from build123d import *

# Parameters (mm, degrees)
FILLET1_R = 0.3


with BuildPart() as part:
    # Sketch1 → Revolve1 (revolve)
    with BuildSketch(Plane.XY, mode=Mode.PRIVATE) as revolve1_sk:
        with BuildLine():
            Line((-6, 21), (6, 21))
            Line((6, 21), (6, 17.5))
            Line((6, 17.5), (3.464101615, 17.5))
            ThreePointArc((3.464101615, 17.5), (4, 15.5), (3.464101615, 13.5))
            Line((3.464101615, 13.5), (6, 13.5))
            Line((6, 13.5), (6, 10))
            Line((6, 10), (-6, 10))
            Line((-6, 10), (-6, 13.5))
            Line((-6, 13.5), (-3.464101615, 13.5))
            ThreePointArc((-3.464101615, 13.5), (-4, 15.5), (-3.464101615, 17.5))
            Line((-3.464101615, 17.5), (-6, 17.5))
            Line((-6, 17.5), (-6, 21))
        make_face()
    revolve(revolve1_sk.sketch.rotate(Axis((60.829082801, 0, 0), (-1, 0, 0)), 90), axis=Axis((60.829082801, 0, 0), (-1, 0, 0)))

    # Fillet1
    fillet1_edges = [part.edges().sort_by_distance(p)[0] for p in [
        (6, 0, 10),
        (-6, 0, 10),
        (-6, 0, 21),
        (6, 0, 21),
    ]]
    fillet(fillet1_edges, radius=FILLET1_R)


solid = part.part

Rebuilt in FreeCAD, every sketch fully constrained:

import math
import FreeCAD as App
import Part
import Sketcher
from FreeCAD import Vector


def edges_at(feature, points):
    """Names of the edges that pass closest to the given points."""
    edges = feature.Shape.Edges
    near = lambda p: min(range(len(edges)), key=lambda i: edges[i].distToShape(Part.Vertex(*p))[0])
    return sorted({f"Edge{near(p) + 1}" for p in points})

doc = App.newDocument("Part")
body = doc.addObject("PartDesign::Body", "Body")

# Sketch on XY plane
sketch1 = doc.addObject("Sketcher::SketchObject", "Sketch")
body.addObject(sketch1)
sketch1.AttachmentSupport = (doc.XY_Plane, [""])
sketch1.MapMode = "FlatFace"
sketch1.addGeometry([
    Part.LineSegment(Vector(6, 21, 0), Vector(-6, 21, 0)),  # 0
    Part.LineSegment(Vector(-6, 21, 0), Vector(-6, 17.5, 0)),  # 1
    Part.LineSegment(Vector(-6, 17.5, 0), Vector(-3.464102, 17.5, 0)),  # 2
    Part.ArcOfCircle(Part.Circle(Vector(0, 15.5, 0), Vector(0, 0, 1), 4), math.radians(150), math.radians(210)),  # 3
    Part.LineSegment(Vector(-3.464102, 13.5, 0), Vector(-6, 13.5, 0)),  # 4
    Part.LineSegment(Vector(-6, 13.5, 0), Vector(-6, 10, 0)),  # 5
    Part.LineSegment(Vector(-6, 10, 0), Vector(6, 10, 0)),  # 6
    Part.LineSegment(Vector(6, 10, 0), Vector(6, 13.5, 0)),  # 7
    Part.LineSegment(Vector(6, 13.5, 0), Vector(3.464102, 13.5, 0)),  # 8
    Part.ArcOfCircle(Part.Circle(Vector(0, 15.5, 0), Vector(0, 0, 1), 4), math.radians(-30), math.radians(30)),  # 9
    Part.LineSegment(Vector(3.464102, 17.5, 0), Vector(6, 17.5, 0)),  # 10
    Part.LineSegment(Vector(6, 17.5, 0), Vector(6, 21, 0)),  # 11
], False)
sketch1.addConstraint([
    Sketcher.Constraint("Coincident", 0, 2, 1, 1),
    Sketcher.Constraint("Coincident", 1, 2, 2, 1),
    Sketcher.Constraint("Coincident", 2, 2, 3, 1),
    Sketcher.Constraint("Coincident", 3, 2, 4, 1),
    Sketcher.Constraint("Coincident", 4, 2, 5, 1),
    Sketcher.Constraint("Coincident", 5, 2, 6, 1),
    Sketcher.Constraint("Coincident", 6, 2, 7, 1),
    Sketcher.Constraint("Coincident", 7, 2, 8, 1),
    Sketcher.Constraint("Coincident", 8, 2, 9, 1),
    Sketcher.Constraint("Coincident", 9, 2, 10, 1),
    Sketcher.Constraint("Coincident", 10, 2, 11, 1),
    Sketcher.Constraint("Coincident", 11, 2, 0, 1),
    Sketcher.Constraint("Horizontal", 0),
    Sketcher.Constraint("Vertical", 1),
    Sketcher.Constraint("Horizontal", 2),
    Sketcher.Constraint("Horizontal", 4),
    Sketcher.Constraint("Vertical", 5),
    Sketcher.Constraint("Horizontal", 6),
    Sketcher.Constraint("Vertical", 7),
    Sketcher.Constraint("Horizontal", 8),
    Sketcher.Constraint("Horizontal", 10),
    Sketcher.Constraint("Vertical", 11),
    Sketcher.Constraint("Coincident", 9, 3, 3, 3),
    Sketcher.Constraint("Equal", 3, 9),
    Sketcher.Constraint("Symmetric", 4, 2, 7, 2, -2),
    Sketcher.Constraint("Symmetric", 2, 2, 9, 2, -2),
    Sketcher.Constraint("Vertical", 2, 2, 3, 2),
    Sketcher.Constraint("Vertical", 1, 2, 4, 2),
    Sketcher.Constraint("Vertical", 7, 2, 10, 2),
    Sketcher.Constraint("Equal", 1, 5),
    Sketcher.Constraint("Radius", 3, 4.0),
    Sketcher.Constraint("DistanceX", 0, 2, 0, 1, 12.0),
    Sketcher.Constraint("DistanceY", 1, 2, 1, 1, 3.5),
    Sketcher.Constraint("DistanceY", -1, 1, 0, 2, 21.0),
    Sketcher.Constraint("DistanceY", -1, 1, 5, 2, 10.0),
])
revolution = doc.addObject("PartDesign::Revolution", "Revolution")
body.addObject(revolution)
revolution.Profile = sketch1
revolution.ReferenceAxis = (sketch1, ["H_Axis"])
revolution.Angle = 360
doc.recompute()

fillet = doc.addObject("PartDesign::Fillet", "Fillet")
body.addObject(fillet)
fillet.Base = (revolution, edges_at(revolution, [
    (6, 0, 10),
    (-6, 0, 10),
    (-6, 0, 21),
    (6, 0, 21),
]))
fillet.Radius = 0.3

doc.recompute()
